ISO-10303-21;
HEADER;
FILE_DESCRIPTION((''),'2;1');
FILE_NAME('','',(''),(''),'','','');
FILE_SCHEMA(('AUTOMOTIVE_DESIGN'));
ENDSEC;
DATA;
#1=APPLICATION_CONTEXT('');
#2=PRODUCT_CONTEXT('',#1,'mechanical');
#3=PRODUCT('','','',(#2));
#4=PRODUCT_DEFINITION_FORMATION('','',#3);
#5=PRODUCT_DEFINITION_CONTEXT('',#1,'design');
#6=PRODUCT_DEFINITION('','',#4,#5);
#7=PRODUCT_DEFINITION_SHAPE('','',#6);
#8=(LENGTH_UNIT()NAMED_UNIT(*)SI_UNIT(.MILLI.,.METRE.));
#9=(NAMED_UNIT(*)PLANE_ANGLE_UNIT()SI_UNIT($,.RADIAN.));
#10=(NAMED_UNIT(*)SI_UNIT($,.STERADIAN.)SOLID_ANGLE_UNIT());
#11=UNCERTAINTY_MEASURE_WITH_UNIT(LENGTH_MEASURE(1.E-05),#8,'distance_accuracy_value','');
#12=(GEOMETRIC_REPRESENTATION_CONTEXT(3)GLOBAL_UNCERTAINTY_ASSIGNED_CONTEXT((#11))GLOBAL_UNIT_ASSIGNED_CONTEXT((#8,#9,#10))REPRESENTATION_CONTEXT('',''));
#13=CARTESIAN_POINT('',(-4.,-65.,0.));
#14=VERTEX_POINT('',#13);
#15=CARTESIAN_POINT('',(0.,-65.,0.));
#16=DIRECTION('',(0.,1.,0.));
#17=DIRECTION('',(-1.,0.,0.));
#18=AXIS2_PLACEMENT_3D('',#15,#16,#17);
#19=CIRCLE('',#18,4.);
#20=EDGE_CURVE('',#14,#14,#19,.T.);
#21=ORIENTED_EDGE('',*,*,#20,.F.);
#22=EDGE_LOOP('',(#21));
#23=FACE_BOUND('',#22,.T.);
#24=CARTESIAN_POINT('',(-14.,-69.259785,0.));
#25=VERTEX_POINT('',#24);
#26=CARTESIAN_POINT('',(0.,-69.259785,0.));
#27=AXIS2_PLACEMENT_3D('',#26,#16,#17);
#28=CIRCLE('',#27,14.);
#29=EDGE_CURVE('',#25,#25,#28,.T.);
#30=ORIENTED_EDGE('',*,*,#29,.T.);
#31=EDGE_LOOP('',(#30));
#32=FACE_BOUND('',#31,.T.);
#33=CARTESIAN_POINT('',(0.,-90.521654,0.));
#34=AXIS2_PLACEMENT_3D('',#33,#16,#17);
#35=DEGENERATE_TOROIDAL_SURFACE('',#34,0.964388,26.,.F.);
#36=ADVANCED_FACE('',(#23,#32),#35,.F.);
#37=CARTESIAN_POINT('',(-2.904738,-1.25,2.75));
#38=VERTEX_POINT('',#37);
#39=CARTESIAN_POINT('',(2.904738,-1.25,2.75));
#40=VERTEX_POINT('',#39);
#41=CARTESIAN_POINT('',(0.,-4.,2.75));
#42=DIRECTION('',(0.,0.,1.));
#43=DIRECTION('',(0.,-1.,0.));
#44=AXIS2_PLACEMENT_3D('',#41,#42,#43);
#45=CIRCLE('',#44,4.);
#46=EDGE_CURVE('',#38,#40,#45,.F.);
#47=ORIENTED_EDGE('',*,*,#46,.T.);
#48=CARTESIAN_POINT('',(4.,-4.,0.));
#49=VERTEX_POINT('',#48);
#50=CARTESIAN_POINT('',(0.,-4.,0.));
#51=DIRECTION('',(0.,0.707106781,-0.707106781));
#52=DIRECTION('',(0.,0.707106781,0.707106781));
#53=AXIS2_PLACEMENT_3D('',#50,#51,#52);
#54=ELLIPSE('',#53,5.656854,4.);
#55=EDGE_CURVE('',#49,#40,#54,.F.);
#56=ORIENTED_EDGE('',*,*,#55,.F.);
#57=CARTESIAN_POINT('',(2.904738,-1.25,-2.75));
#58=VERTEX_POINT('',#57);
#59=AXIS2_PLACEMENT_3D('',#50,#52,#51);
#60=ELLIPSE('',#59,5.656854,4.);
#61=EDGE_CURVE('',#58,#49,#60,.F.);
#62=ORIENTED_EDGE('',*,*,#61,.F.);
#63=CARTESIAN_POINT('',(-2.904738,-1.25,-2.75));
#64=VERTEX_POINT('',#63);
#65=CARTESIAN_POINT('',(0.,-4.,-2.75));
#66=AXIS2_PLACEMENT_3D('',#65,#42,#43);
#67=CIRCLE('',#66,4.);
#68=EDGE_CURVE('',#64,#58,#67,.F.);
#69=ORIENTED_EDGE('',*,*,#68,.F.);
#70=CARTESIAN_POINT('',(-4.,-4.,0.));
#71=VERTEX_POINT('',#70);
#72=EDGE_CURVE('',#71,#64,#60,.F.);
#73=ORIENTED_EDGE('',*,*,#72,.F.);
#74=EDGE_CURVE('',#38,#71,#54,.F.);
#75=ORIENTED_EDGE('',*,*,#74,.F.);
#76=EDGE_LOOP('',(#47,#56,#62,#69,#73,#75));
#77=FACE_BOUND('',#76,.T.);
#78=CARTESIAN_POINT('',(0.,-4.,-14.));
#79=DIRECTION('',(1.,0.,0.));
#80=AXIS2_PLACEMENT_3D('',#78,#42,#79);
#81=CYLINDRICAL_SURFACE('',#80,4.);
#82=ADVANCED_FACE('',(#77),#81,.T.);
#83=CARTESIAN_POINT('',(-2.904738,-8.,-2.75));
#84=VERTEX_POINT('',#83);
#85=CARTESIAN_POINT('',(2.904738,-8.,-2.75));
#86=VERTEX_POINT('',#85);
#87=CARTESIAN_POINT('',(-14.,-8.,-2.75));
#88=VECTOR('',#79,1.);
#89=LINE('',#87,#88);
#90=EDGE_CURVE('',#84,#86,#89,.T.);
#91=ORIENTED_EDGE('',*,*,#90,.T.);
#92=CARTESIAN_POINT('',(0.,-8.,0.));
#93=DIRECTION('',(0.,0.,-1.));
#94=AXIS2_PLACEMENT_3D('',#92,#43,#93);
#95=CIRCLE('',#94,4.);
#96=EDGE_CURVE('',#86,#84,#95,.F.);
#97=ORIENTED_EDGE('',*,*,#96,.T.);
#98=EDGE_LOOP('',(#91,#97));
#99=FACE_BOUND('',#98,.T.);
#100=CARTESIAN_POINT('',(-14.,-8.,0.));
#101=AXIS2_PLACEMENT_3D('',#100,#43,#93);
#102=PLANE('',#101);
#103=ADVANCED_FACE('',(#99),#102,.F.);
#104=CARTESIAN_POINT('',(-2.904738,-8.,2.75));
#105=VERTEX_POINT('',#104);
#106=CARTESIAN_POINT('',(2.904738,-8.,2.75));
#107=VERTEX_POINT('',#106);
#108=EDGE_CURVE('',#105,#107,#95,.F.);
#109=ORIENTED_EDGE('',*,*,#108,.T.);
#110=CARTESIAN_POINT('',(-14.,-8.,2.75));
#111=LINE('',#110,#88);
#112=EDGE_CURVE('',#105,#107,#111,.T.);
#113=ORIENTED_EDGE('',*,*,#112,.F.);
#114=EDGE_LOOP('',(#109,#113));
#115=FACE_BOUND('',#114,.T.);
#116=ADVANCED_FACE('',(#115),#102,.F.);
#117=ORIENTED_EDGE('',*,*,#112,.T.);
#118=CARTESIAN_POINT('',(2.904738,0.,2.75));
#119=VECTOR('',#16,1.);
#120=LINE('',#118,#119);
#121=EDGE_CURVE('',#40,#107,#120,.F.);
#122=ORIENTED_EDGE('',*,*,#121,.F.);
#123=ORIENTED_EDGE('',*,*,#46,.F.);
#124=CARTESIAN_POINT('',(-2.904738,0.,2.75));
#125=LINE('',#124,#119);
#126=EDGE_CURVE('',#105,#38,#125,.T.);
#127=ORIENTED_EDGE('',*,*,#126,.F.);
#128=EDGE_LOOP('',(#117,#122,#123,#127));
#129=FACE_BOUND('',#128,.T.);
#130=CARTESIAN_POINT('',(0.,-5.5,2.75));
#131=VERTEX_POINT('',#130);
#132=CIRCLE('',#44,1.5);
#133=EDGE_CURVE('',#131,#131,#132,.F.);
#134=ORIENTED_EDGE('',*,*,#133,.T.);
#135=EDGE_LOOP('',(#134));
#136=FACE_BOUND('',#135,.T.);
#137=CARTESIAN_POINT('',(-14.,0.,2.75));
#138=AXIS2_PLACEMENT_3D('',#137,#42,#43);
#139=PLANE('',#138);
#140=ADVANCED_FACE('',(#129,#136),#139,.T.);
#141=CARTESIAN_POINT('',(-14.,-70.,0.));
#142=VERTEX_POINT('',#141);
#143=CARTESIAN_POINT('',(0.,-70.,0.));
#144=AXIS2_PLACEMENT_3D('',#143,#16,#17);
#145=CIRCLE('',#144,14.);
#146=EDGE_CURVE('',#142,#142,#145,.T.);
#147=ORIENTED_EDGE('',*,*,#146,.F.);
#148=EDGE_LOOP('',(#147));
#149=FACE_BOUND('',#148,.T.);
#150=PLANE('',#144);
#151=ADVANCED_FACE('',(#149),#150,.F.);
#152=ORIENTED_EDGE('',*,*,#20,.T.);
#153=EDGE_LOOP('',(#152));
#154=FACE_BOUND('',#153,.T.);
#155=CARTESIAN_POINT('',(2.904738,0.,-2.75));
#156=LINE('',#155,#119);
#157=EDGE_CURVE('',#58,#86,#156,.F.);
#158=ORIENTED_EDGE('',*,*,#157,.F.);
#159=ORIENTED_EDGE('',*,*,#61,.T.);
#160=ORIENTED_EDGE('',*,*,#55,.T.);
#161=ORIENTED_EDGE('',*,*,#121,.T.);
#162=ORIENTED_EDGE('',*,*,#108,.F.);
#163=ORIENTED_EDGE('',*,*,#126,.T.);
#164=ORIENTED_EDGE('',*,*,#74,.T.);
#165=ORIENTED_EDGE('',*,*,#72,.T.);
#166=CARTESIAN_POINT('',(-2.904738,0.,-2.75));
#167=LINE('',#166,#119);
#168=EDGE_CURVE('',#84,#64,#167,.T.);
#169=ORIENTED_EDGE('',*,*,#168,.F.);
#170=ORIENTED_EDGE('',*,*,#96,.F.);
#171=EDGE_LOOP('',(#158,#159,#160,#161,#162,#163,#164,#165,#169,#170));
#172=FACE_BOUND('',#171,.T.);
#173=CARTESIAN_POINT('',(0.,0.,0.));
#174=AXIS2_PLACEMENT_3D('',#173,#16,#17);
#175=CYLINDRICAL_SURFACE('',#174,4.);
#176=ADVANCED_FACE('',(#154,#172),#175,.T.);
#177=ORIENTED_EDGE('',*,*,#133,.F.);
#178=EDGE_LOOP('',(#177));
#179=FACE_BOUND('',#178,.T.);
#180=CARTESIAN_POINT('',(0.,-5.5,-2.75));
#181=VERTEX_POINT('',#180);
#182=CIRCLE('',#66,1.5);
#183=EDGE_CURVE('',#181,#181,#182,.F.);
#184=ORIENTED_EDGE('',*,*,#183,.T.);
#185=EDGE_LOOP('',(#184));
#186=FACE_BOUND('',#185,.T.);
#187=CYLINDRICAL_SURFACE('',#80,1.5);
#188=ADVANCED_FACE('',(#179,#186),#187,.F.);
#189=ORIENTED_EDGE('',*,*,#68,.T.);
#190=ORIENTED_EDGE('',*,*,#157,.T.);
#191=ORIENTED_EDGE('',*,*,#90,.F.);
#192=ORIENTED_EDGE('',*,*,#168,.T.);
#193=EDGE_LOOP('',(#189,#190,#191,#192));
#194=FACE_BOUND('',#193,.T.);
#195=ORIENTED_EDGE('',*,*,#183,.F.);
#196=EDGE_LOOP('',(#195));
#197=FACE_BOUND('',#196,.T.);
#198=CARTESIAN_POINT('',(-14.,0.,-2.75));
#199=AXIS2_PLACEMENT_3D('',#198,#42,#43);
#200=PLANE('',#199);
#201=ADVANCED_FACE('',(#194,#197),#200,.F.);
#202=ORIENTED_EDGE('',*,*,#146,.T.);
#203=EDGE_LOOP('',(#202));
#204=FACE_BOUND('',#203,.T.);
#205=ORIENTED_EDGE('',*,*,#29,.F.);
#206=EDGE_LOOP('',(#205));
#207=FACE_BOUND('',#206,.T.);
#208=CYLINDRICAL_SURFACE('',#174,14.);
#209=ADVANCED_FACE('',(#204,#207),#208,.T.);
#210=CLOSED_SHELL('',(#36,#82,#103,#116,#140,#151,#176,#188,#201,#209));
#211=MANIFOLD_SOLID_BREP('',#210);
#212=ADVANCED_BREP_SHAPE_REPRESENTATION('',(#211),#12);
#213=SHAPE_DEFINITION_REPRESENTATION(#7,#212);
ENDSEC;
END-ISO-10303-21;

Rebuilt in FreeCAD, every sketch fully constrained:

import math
import FreeCAD as App
import Part
import Sketcher

V = App.Vector
Q = App.Units.Quantity

doc = App.newDocument("Part")
body = doc.addObject("PartDesign::Body", "Body")

# Sketch on XY plane
sketch1 = body.newObject("Sketcher::SketchObject", "Sketch")
sketch1.AttachmentSupport = (doc.getObject("XY_Plane"), [""])
sketch1.MapMode = "FlatFace"
sketch1.addGeometry([
    Part.ArcOfCircle(Part.Circle(V(0.964388, -90.521655, 0), V(0, 0, 1), 26), math.radians(101.007531), math.radians(125.138396)),  # 0
    Part.LineSegment(V(-14, -69.259785, 0), V(-14, -70, 0)),  # 1
    Part.LineSegment(V(-14, -70, 0), V(0, -70, 0)),  # 2
    Part.LineSegment(V(0, -70, 0), V(0, 0, 0)),  # 3
    Part.LineSegment(V(0, 0, 0), V(-4, 0, 0)),  # 4
    Part.LineSegment(V(-4, 0, 0), V(-4, -65, 0)),  # 5
], False)
sketch1.addConstraint([
    Sketcher.Constraint("Coincident", 0, 2, 1, 1),
    Sketcher.Constraint("Coincident", 1, 2, 2, 1),
    Sketcher.Constraint("Coincident", 2, 2, 3, 1),
    Sketcher.Constraint("Coincident", 3, 2, 4, 1),
    Sketcher.Constraint("Coincident", 4, 2, 5, 1),
    Sketcher.Constraint("Coincident", 5, 2, 0, 1),
    Sketcher.Constraint("Vertical", 1),
    Sketcher.Constraint("Horizontal", 2),
    Sketcher.Constraint("Vertical", 3),
    Sketcher.Constraint("Horizontal", 4),
    Sketcher.Constraint("Vertical", 5),
    Sketcher.Constraint("Coincident", 3, 2, -1, 1),
    Sketcher.Constraint("Radius", 0, Q("26 mm")),
    Sketcher.Constraint("DistanceX", 2, 1, 2, 2, Q("14 mm")),
    Sketcher.Constraint("DistanceX", 4, 2, 4, 1, Q("4 mm")),
    Sketcher.Constraint("DistanceY", 3, 1, 3, 2, Q("70 mm")),
    Sketcher.Constraint("DistanceY", 5, 2, 5, 1, Q("65 mm")),
    Sketcher.Constraint("DistanceY", 1, 2, 1, 1, Q("0.740215 mm")),
])
revolution = body.newObject("PartDesign::Revolution", "Revolution")
revolution.Profile = sketch1
revolution.ReferenceAxis = (sketch1, ["V_Axis"])
revolution.Angle = 360

# Sketch on XY plane
sketch2 = body.newObject("Sketcher::SketchObject", "Sketch001")
sketch2.AttachmentSupport = (doc.getObject("XY_Plane"), [""])
sketch2.MapMode = "FlatFace"
sketch2.addGeometry([
    Part.LineSegment(V(-4, 0, 0), V(-4, -4, 0)),  # 0
    Part.ArcOfCircle(Part.Circle(V(0, -4, 0), V(0, 0, 1), 4), math.radians(90), math.radians(180)),  # 1
    Part.LineSegment(V(0, 0, 0), V(-4, 0, 0)),  # 2
    Part.ArcOfCircle(Part.Circle(V(0, -4, 0), V(0, 0, 1), 4), math.radians(0), math.radians(90)),  # 3
    Part.LineSegment(V(4, -4, 0), V(4, 0, 0)),  # 4
    Part.LineSegment(V(4, 0, 0), V(0, 0, 0)),  # 5
    Part.Circle(V(0, -4, 0), V(0, 0, 1), 1.5),  # 6
], False)
sketch2.addConstraint([
    Sketcher.Constraint("Tangent", 0, 2, 1, 2),
    Sketcher.Constraint("Tangent", 1, 1, 2, 1),
    Sketcher.Constraint("Coincident", 2, 2, 0, 1),
    Sketcher.Constraint("Tangent", 3, 1, 4, 1),
    Sketcher.Constraint("Coincident", 4, 2, 5, 1),
    Sketcher.Constraint("Tangent", 5, 2, 3, 2),
    Sketcher.Constraint("Vertical", 0),
    Sketcher.Constraint("Horizontal", 2),
    Sketcher.Constraint("Vertical", 4),
    Sketcher.Constraint("Horizontal", 5),
    Sketcher.Constraint("Coincident", 1, 1, -1, 1),
    Sketcher.Constraint("Coincident", 5, 2, -1, 1),
    Sketcher.Constraint("Coincident", 6, 3, 1, 3),
    Sketcher.Constraint("Equal", 1, 3),
    Sketcher.Constraint("Diameter", 6, Q("3 mm")),
    Sketcher.Constraint("Radius", 1, Q("4 mm")),
])
pocket1 = body.newObject("PartDesign::Pocket", "Pocket")
pocket1.Profile = sketch2
pocket1.Type = "ThroughAll"
pocket1.Midplane = True

# Sketch on YZ plane
sketch3 = body.newObject("Sketcher::SketchObject", "Sketch002")
sketch3.AttachmentSupport = (doc.getObject("YZ_Plane"), [""])
sketch3.MapMode = "FlatFace"
sketch3.addGeometry([
    Part.LineSegment(V(0, 4, 0), V(-8, 4, 0)),  # 0
    Part.LineSegment(V(-8, 4, 0), V(-8, 2.75, 0)),  # 1
    Part.LineSegment(V(-8, 2.75, 0), V(0, 2.75, 0)),  # 2
    Part.LineSegment(V(0, 2.75, 0), V(0, 4, 0)),  # 3
    Part.LineSegment(V(0, -2.75, 0), V(-8, -2.75, 0)),  # 4
    Part.LineSegment(V(-8, -2.75, 0), V(-8, -4, 0)),  # 5
    Part.LineSegment(V(-8, -4, 0), V(0, -4, 0)),  # 6
    Part.LineSegment(V(0, -4, 0), V(0, -2.75, 0)),  # 7
], False)
sketch3.addConstraint([
    Sketcher.Constraint("Coincident", 0, 2, 1, 1),
    Sketcher.Constraint("Coincident", 1, 2, 2, 1),
    Sketcher.Constraint("Coincident", 2, 2, 3, 1),
    Sketcher.Constraint("Coincident", 3, 2, 0, 1),
    Sketcher.Constraint("Coincident", 4, 2, 5, 1),
    Sketcher.Constraint("Coincident", 5, 2, 6, 1),
    Sketcher.Constraint("Coincident", 6, 2, 7, 1),
    Sketcher.Constraint("Coincident", 7, 2, 4, 1),
    Sketcher.Constraint("Horizontal", 0),
    Sketcher.Constraint("Vertical", 1),
    Sketcher.Constraint("Horizontal", 2),
    Sketcher.Constraint("Vertical", 3),
    Sketcher.Constraint("Horizontal", 4),
    Sketcher.Constraint("Vertical", 5),
    Sketcher.Constraint("Horizontal", 6),
    Sketcher.Constraint("Vertical", 7),
    Sketcher.Constraint("Symmetric", 3, 2, 6, 2, -1, 1),
    Sketcher.Constraint("Symmetric", 1, 2, 4, 2, -1),
    Sketcher.Constraint("PointOnObject", 2, 2, -2),
    Sketcher.Constraint("DistanceX", 0, 2, 0, 1, Q("8 mm")),
    Sketcher.Constraint("DistanceY", -1, 1, 0, 2, Q("4 mm")),
    Sketcher.Constraint("DistanceY", 1, 2, 1, 1, Q("1.25 mm")),
])
pocket2 = body.newObject("PartDesign::Pocket", "Pocket001")
pocket2.Profile = sketch3
pocket2.Type = "ThroughAll"
pocket2.Midplane = True

doc.recompute()
